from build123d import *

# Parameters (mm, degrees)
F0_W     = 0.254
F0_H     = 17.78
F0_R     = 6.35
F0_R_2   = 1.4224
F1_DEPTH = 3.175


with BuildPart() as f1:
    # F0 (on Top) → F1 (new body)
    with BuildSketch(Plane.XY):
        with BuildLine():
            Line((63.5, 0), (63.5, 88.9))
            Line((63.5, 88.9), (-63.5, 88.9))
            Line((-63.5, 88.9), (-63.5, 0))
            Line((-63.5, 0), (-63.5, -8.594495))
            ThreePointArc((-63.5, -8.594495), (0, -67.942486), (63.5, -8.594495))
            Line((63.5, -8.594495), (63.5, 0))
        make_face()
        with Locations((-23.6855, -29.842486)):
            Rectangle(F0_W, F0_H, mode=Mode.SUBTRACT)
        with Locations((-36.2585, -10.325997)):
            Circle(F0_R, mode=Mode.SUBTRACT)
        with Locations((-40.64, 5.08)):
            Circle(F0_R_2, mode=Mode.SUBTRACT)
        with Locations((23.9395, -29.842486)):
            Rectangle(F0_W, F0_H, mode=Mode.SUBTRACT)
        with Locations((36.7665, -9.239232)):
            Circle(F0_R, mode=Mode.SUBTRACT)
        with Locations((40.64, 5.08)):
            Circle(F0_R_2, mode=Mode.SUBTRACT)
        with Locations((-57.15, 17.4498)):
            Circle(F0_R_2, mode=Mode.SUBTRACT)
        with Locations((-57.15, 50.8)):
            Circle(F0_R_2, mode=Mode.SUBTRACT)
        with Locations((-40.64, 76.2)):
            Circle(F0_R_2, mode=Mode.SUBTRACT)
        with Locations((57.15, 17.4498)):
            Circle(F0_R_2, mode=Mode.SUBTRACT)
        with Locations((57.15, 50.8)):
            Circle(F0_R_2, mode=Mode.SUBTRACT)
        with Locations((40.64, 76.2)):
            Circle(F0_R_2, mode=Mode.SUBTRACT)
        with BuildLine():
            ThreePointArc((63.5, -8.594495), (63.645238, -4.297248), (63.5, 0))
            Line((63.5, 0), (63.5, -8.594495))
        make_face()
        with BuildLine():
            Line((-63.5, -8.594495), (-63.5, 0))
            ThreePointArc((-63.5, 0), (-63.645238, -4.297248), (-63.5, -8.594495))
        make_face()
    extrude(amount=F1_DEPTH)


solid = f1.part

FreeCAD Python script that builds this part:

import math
import FreeCAD as App
import Part
import Sketcher

V = App.Vector
Q = App.Units.Quantity


def add_polygon(sketch, points):
    """Adds a closed chain of lines whose ends are joined by coincident constraints."""
    first, n = sketch.GeometryCount, len(points)
    for a, b in zip(points, points[1:] + points[:1]):
        sketch.addGeometry(Part.LineSegment(App.Vector(*a, 0), App.Vector(*b, 0)), False)
    for i in range(n):
        sketch.addConstraint(Sketcher.Constraint("Coincident", first + i, 2, first + (i + 1) % n, 1))

doc = App.newDocument("Part")
body = doc.addObject("PartDesign::Body", "Body")

sketch1 = body.newObject("Sketcher::SketchObject", "Sketch")
sketch1.AttachmentSupport = (doc.getObject("XY_Plane"), [""])
sketch1.MapMode = "FlatFace"
sketch1.addGeometry(Part.LineSegment(V(63.5, 88.9, 0), V(-63.5, 88.9, 0)), False)
sketch1.addGeometry(Part.LineSegment(V(-63.5, 88.9, 0), V(-63.5, 0, 0)), False)
sketch1.addGeometry(Part.ArcOfCircle(Part.Circle(V(0.000055, -4.297248, 0), V(0, 0, 1), 63.645293), math.radians(176.128518), math.radians(183.871482)), False)
sketch1.addGeometry(Part.ArcOfCircle(Part.Circle(V(0, -4.297248, 0), V(0, 0, 1), 63.645238), math.radians(-176.128515), math.radians(-3.871485)), False)
sketch1.addGeometry(Part.ArcOfCircle(Part.Circle(V(-0.000055, -4.297248, 0), V(0, 0, 1), 63.645293), math.radians(-3.871482), math.radians(3.871482)), False)
sketch1.addGeometry(Part.LineSegment(V(63.5, 0, 0), V(63.5, 88.9, 0)), False)
sketch1.addGeometry(Part.Circle(V(-36.2585, -10.325997, 0), V(0, 0, 1), 6.35), False)
add_polygon(sketch1, [(-23.5585, -38.732486), (-23.8125, -38.732486), (-23.8125, -20.952486), (-23.5585, -20.952486)])
sketch1.addGeometry(Part.Circle(V(-57.15, 17.4498, 0), V(0, 0, 1), 1.4224), False)
sketch1.addGeometry(Part.Circle(V(-40.64, 5.08, 0), V(0, 0, 1), 1.4224), False)
add_polygon(sketch1, [(24.0665, -38.732486), (23.8125, -38.732486), (23.8125, -20.952486), (24.0665, -20.952486)])
sketch1.addGeometry(Part.Circle(V(36.7665, -9.239232, 0), V(0, 0, 1), 6.35), False)
sketch1.addGeometry(Part.Circle(V(40.64, 5.08, 0), V(0, 0, 1), 1.4224), False)
sketch1.addGeometry(Part.Circle(V(57.15, 17.4498, 0), V(0, 0, 1), 1.4224), False)
sketch1.addGeometry(Part.Circle(V(-57.15, 50.8, 0), V(0, 0, 1), 1.4224), False)
sketch1.addGeometry(Part.Circle(V(-40.64, 76.2, 0), V(0, 0, 1), 1.4224), False)
sketch1.addGeometry(Part.Circle(V(57.15, 50.8, 0), V(0, 0, 1), 1.4224), False)
sketch1.addGeometry(Part.Circle(V(40.64, 76.2, 0), V(0, 0, 1), 1.4224), False)
sketch1.addConstraint([
    Sketcher.Constraint("Coincident", 0, 2, 1, 1),
    Sketcher.Constraint("Coincident", 1, 2, 2, 1),
    Sketcher.Constraint("Coincident", 2, 2, 3, 1),
    Sketcher.Constraint("Coincident", 3, 2, 4, 1),
    Sketcher.Constraint("Coincident", 4, 2, 5, 1),
    Sketcher.Constraint("Coincident", 5, 2, 0, 1),
    Sketcher.Constraint("Horizontal", 0),
    Sketcher.Constraint("Vertical", 1),
    Sketcher.Constraint("Vertical", 5),
    Sketcher.Constraint("Horizontal", 7),
    Sketcher.Constraint("Vertical", 8),
    Sketcher.Constraint("Horizontal", 9),
    Sketcher.Constraint("Vertical", 10),
    Sketcher.Constraint("Horizontal", 13),
    Sketcher.Constraint("Vertical", 14),
    Sketcher.Constraint("Horizontal", 15),
    Sketcher.Constraint("Vertical", 16),
    Sketcher.Constraint("PointOnObject", 3, 3, -2),
    Sketcher.Constraint("PointOnObject", 1, 2, -1),
    Sketcher.Constraint("PointOnObject", 4, 2, -1),
    Sketcher.Constraint("Diameter", 6, Q("0.5 in")),
    Sketcher.Constraint("Diameter", 17, Q("0.5 in")),
    Sketcher.Constraint("DistanceX", 0, 2, 0, 1, Q("5 in")),
    Sketcher.Constraint("Diameter", 11, Q("0.112 in")),
    Sketcher.Constraint("Diameter", 12, Q("0.112 in")),
    Sketcher.Constraint("Diameter", 18, Q("0.112 in")),
    Sketcher.Constraint("Diameter", 19, Q("0.112 in")),
    Sketcher.Constraint("Diameter", 20, Q("0.112 in")),
    Sketcher.Constraint("Diameter", 21, Q("0.112 in")),
    Sketcher.Constraint("Diameter", 22, Q("0.112 in")),
    Sketcher.Constraint("Diameter", 23, Q("0.112 in")),
    Sketcher.Constraint("DistanceY", 1, 2, 1, 1, Q("3.5 in")),
    Sketcher.Constraint("DistanceY", 8, 1, 8, 2, Q("0.7 in")),
    Sketcher.Constraint("DistanceY", 14, 1, 14, 2, Q("0.7 in")),
    Sketcher.Constraint("DistanceY", -1, 1, 20, 3, Q("2 in")),
    Sketcher.Constraint("DistanceY", -1, 1, 21, 3, Q("3 in")),
    Sketcher.Constraint("DistanceY", -1, 1, 22, 3, Q("2 in")),
    Sketcher.Constraint("DistanceY", -1, 1, 23, 3, Q("3 in")),
    Sketcher.Constraint("DistanceX", 7, 2, 7, 1, Q("0.01 in")),
    Sketcher.Constraint("DistanceX", 13, 2, 13, 1, Q("0.01 in")),
    Sketcher.Constraint("DistanceX", 12, 3, -1, 1, Q("1.6 in")),
    Sketcher.Constraint("DistanceY", -1, 1, 12, 3, Q("0.2 in")),
    Sketcher.Constraint("DistanceX", -1, 1, 18, 3, Q("1.6 in")),
    Sketcher.Constraint("DistanceY", -1, 1, 18, 3, Q("0.2 in")),
    Sketcher.Constraint("DistanceX", 21, 3, -1, 1, Q("1.6 in")),
    Sketcher.Constraint("DistanceX", -1, 1, 23, 3, Q("1.6 in")),
    Sketcher.Constraint("DistanceX", 0, 2, -1, 1, Q("2.5 in")),
    Sketcher.Constraint("DistanceX", 2, 2, -1, 1, Q("2.5 in")),
    Sketcher.Constraint("DistanceX", -1, 1, 3, 2, Q("2.5 in")),
    Sketcher.Constraint("DistanceX", 6, 3, 9, 2, Q("0.5 in")),
    Sketcher.Constraint("DistanceX", 15, 2, 17, 3, Q("0.5 in")),
    Sketcher.Constraint("DistanceX", 11, 3, -1, 1, Q("2.25 in")),
    Sketcher.Constraint("DistanceX", -1, 1, 19, 3, Q("2.25 in")),
    Sketcher.Constraint("DistanceX", 20, 3, -1, 1, Q("2.25 in")),
    Sketcher.Constraint("DistanceX", -1, 1, 22, 3, Q("2.25 in")),
    Sketcher.Constraint("DistanceY", -1, 1, 11, 3, Q("0.687 in")),
    Sketcher.Constraint("DistanceY", -1, 1, 19, 3, Q("0.687 in")),
    Sketcher.Constraint("DistanceX", 7, 2, -1, 1, Q("0.9375 in")),
    Sketcher.Constraint("DistanceX", -1, 1, 13, 2, Q("0.9375 in")),
    Sketcher.Constraint("Radius", 3, 63.645238),
    Sketcher.Constraint("Radius", 2, 63.645293),
    Sketcher.Constraint("Radius", 4, 63.645293),
    Sketcher.Constraint("DistanceY", 6, 3, 2, 2, 1.731502),
    Sketcher.Constraint("DistanceX", 4, 3, 2, 3, 0.00011),
    Sketcher.Constraint("DistanceY", 17, 3, 19, 3, 26.689032),
    Sketcher.Constraint("DistanceY", 7, 2, 6, 3, 28.406489),
    Sketcher.Constraint("DistanceY", 13, 2, 2, 3, 34.435239),
])
pad1 = body.newObject("PartDesign::Pad", "Pad")
pad1.Profile = sketch1
pad1.Length = Q("0.125 in")

doc.recompute()
